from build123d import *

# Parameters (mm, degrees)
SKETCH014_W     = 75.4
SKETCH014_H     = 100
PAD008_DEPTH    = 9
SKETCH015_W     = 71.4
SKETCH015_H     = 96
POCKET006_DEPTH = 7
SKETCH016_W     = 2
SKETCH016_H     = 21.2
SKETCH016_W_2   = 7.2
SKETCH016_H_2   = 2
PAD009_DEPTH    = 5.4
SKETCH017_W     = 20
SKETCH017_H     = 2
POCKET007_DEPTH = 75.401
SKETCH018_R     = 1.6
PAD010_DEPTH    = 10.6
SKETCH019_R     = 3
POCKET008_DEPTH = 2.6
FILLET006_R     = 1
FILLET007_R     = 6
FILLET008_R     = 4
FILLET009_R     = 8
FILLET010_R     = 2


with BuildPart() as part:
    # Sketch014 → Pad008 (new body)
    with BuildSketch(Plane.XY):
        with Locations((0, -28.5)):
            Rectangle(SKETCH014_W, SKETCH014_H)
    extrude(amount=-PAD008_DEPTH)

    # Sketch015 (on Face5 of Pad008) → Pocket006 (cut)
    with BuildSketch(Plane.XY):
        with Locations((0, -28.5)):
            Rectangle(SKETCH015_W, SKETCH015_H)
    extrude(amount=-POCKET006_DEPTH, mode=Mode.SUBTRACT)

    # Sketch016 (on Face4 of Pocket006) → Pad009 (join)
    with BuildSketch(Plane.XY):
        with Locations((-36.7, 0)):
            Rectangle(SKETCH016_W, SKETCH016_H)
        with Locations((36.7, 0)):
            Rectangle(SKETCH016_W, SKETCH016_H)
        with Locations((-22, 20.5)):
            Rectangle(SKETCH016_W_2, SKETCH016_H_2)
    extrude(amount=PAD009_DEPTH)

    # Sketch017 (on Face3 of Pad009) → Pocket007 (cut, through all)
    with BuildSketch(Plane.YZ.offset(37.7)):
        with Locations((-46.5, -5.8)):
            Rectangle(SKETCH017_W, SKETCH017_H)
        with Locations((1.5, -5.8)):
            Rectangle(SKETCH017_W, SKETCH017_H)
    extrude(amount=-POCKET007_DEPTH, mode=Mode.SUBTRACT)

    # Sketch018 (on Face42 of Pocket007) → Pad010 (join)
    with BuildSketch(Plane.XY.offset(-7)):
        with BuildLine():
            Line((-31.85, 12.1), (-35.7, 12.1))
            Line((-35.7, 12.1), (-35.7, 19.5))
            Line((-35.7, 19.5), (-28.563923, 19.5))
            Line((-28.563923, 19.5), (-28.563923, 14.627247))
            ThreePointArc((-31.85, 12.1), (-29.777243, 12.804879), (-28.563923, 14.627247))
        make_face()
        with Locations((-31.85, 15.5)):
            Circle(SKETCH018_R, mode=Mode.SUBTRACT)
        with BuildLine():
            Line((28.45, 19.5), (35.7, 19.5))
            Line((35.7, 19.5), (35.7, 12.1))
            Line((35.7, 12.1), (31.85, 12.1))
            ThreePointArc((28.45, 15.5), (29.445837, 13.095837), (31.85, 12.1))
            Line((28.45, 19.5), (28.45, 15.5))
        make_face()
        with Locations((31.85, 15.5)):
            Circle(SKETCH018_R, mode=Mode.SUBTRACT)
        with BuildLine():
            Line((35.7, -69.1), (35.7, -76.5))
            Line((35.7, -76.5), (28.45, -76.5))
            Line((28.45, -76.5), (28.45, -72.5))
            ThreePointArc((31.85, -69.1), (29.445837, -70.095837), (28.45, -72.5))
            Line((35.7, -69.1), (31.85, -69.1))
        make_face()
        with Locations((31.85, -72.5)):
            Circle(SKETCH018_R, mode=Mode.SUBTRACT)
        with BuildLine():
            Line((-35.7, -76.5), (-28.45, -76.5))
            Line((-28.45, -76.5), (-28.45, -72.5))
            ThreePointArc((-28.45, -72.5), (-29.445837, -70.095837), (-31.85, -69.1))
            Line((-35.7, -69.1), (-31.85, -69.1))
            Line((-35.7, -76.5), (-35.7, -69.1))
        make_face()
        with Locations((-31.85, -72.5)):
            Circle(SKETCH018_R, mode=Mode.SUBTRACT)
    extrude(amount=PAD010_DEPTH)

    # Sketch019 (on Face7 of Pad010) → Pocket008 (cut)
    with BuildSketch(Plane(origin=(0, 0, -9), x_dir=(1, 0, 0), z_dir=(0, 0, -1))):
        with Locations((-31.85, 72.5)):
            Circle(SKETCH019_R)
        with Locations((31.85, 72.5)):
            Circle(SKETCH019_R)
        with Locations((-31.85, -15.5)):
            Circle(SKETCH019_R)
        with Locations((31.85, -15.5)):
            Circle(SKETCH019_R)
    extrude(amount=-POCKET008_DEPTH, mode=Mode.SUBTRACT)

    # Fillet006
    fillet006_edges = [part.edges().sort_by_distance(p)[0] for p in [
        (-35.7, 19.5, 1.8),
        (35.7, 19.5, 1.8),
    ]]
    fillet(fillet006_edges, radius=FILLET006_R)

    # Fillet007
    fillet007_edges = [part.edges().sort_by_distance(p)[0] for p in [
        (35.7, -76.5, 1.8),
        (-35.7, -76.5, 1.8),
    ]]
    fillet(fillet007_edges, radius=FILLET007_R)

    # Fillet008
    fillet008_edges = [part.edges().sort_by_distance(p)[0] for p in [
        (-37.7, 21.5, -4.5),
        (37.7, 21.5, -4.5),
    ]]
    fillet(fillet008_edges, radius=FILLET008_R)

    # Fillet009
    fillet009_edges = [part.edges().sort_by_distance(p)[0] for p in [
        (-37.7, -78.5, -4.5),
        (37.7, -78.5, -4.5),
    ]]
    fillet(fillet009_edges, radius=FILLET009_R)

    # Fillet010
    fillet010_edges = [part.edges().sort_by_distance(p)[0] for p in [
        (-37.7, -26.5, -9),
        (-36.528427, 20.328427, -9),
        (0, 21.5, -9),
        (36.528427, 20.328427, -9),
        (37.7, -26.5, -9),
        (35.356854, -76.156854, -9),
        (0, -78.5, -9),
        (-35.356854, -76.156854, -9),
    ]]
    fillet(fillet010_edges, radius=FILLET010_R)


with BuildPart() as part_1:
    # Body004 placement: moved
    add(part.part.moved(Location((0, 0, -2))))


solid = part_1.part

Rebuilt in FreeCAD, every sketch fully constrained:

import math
import FreeCAD as App
import Part
import Sketcher
from FreeCAD import Vector


def edges_at(feature, points):
    """Names of the edges that pass closest to the given points."""
    edges = feature.Shape.Edges
    near = lambda p: min(range(len(edges)), key=lambda i: edges[i].distToShape(Part.Vertex(*p))[0])
    return sorted({f"Edge{near(p) + 1}" for p in points})

doc = App.newDocument("Part")
body = doc.addObject("PartDesign::Body", "Body")

sketch1 = body.newObject("Sketcher::SketchObject", "Sketch")
sketch1.AttachmentSupport = (doc.getObject("XY_Plane"), [""])
sketch1.MapMode = "FlatFace"
sketch1.addGeometry(Part.LineSegment(Vector(-37.7, 21.5, 0), Vector(-37.7, -78.5, 0)), False)
sketch1.addGeometry(Part.LineSegment(Vector(-37.7, -78.5, 0), Vector(37.7, -78.5, 0)), False)
sketch1.addGeometry(Part.LineSegment(Vector(37.7, -78.5, 0), Vector(37.7, 21.5, 0)), False)
sketch1.addGeometry(Part.LineSegment(Vector(37.7, 21.5, 0), Vector(-37.7, 21.5, 0)), False)
sketch1.addConstraint(Sketcher.Constraint("Coincident", 0, 2, 1, 1))
sketch1.addConstraint(Sketcher.Constraint("Coincident", 1, 2, 2, 1))
sketch1.addConstraint(Sketcher.Constraint("Coincident", 2, 2, 3, 1))
sketch1.addConstraint(Sketcher.Constraint("Coincident", 3, 2, 0, 1))
sketch1.addConstraint(Sketcher.Constraint("Vertical", 0))
sketch1.addConstraint(Sketcher.Constraint("Horizontal", 1))
sketch1.addConstraint(Sketcher.Constraint("Vertical", 2))
sketch1.addConstraint(Sketcher.Constraint("Horizontal", 3))
sketch1.addConstraint(Sketcher.Constraint("DistanceY", 0, 2, 0, 1, 100.0))
sketch1.addConstraint(Sketcher.Constraint("DistanceX", 1, 1, 1, 2, 75.4))
sketch1.addConstraint(Sketcher.Constraint("DistanceX", 0, 2, -1, 1, 37.7))
sketch1.addConstraint(Sketcher.Constraint("DistanceY", 0, 2, -1, 1, 78.5))
pad1 = body.newObject("PartDesign::Pad", "Pad")
pad1.Profile = sketch1
pad1.Length = 9
pad1.Reversed = True

sketch2 = body.newObject("Sketcher::SketchObject", "Sketch001")
sketch2.AttachmentSupport = (doc.getObject("XY_Plane"), [""])
sketch2.MapMode = "FlatFace"
sketch2.addGeometry(Part.LineSegment(Vector(-35.7, 19.5, 0), Vector(-35.7, -76.5, 0)), False)
sketch2.addGeometry(Part.LineSegment(Vector(-35.7, -76.5, 0), Vector(35.7, -76.5, 0)), False)
sketch2.addGeometry(Part.LineSegment(Vector(35.7, -76.5, 0), Vector(35.7, 19.5, 0)), False)
sketch2.addGeometry(Part.LineSegment(Vector(35.7, 19.5, 0), Vector(-35.7, 19.5, 0)), False)
sketch2.addConstraint(Sketcher.Constraint("Coincident", 0, 2, 1, 1))
sketch2.addConstraint(Sketcher.Constraint("Coincident", 1, 2, 2, 1))
sketch2.addConstraint(Sketcher.Constraint("Coincident", 2, 2, 3, 1))
sketch2.addConstraint(Sketcher.Constraint("Coincident", 3, 2, 0, 1))
sketch2.addConstraint(Sketcher.Constraint("Vertical", 0))
sketch2.addConstraint(Sketcher.Constraint("Horizontal", 1))
sketch2.addConstraint(Sketcher.Constraint("Vertical", 2))
sketch2.addConstraint(Sketcher.Constraint("Horizontal", 3))
sketch2.addConstraint(Sketcher.Constraint("DistanceY", 0, 2, 0, 1, 96.0))
sketch2.addConstraint(Sketcher.Constraint("DistanceX", 1, 1, 1, 2, 71.4))
sketch2.addConstraint(Sketcher.Constraint("DistanceX", 0, 2, -1, 1, 35.7))
sketch2.addConstraint(Sketcher.Constraint("DistanceY", 0, 2, -1, 1, 76.5))
pocket1 = body.newObject("PartDesign::Pocket", "Pocket")
pocket1.Profile = sketch2
pocket1.Length = 7

sketch3 = body.newObject("Sketcher::SketchObject", "Sketch002")
sketch3.AttachmentSupport = (doc.getObject("XY_Plane"), [""])
sketch3.MapMode = "FlatFace"
sketch3.addGeometry(Part.LineSegment(Vector(-37.7, 10.6, 0), Vector(-37.7, -10.6, 0)), False)
sketch3.addGeometry(Part.LineSegment(Vector(-37.7, -10.6, 0), Vector(-35.7, -10.6, 0)), False)
sketch3.addGeometry(Part.LineSegment(Vector(-35.7, -10.6, 0), Vector(-35.7, 10.6, 0)), False)
sketch3.addGeometry(Part.LineSegment(Vector(-35.7, 10.6, 0), Vector(-37.7, 10.6, 0)), False)
sketch3.addGeometry(Part.LineSegment(Vector(35.7, 10.6, 0), Vector(35.7, -10.6, 0)), False)
sketch3.addGeometry(Part.LineSegment(Vector(35.7, -10.6, 0), Vector(37.7, -10.6, 0)), False)
sketch3.addGeometry(Part.LineSegment(Vector(37.7, -10.6, 0), Vector(37.7, 10.6, 0)), False)
sketch3.addGeometry(Part.LineSegment(Vector(37.7, 10.6, 0), Vector(35.7, 10.6, 0)), False)
sketch3.addGeometry(Part.LineSegment(Vector(-25.6, 21.5, 0), Vector(-25.6, 19.5, 0)), False)
sketch3.addGeometry(Part.LineSegment(Vector(-25.6, 19.5, 0), Vector(-18.4, 19.5, 0)), False)
sketch3.addGeometry(Part.LineSegment(Vector(-18.4, 19.5, 0), Vector(-18.4, 21.5, 0)), False)
sketch3.addGeometry(Part.LineSegment(Vector(-18.4, 21.5, 0), Vector(-25.6, 21.5, 0)), False)
sketch3.addConstraint(Sketcher.Constraint("Coincident", 0, 2, 1, 1))
sketch3.addConstraint(Sketcher.Constraint("Coincident", 1, 2, 2, 1))
sketch3.addConstraint(Sketcher.Constraint("Coincident", 2, 2, 3, 1))
sketch3.addConstraint(Sketcher.Constraint("Coincident", 3, 2, 0, 1))
sketch3.addConstraint(Sketcher.Constraint("Coincident", 4, 2, 5, 1))
sketch3.addConstraint(Sketcher.Constraint("Coincident", 5, 2, 6, 1))
sketch3.addConstraint(Sketcher.Constraint("Coincident", 6, 2, 7, 1))
sketch3.addConstraint(Sketcher.Constraint("Coincident", 7, 2, 4, 1))
sketch3.addConstraint(Sketcher.Constraint("Coincident", 8, 2, 9, 1))
sketch3.addConstraint(Sketcher.Constraint("Coincident", 9, 2, 10, 1))
sketch3.addConstraint(Sketcher.Constraint("Coincident", 10, 2, 11, 1))
sketch3.addConstraint(Sketcher.Constraint("Coincident", 11, 2, 8, 1))
sketch3.addConstraint(Sketcher.Constraint("Vertical", 0))
sketch3.addConstraint(Sketcher.Constraint("Horizontal", 1))
sketch3.addConstraint(Sketcher.Constraint("Vertical", 2))
sketch3.addConstraint(Sketcher.Constraint("Horizontal", 3))
sketch3.addConstraint(Sketcher.Constraint("Vertical", 4))
sketch3.addConstraint(Sketcher.Constraint("Horizontal", 5))
sketch3.addConstraint(Sketcher.Constraint("Vertical", 6))
sketch3.addConstraint(Sketcher.Constraint("Horizontal", 7))
sketch3.addConstraint(Sketcher.Constraint("Vertical", 8))
sketch3.addConstraint(Sketcher.Constraint("Horizontal", 9))
sketch3.addConstraint(Sketcher.Constraint("Vertical", 10))
sketch3.addConstraint(Sketcher.Constraint("Horizontal", 11))
sketch3.addConstraint(Sketcher.Constraint("Symmetric", 2, 2, 4, 2, -1, 1))
sketch3.addConstraint(Sketcher.Constraint("Symmetric", 0, 2, 6, 2, -1, 1))
sketch3.addConstraint(Sketcher.Constraint("Horizontal", 1, 2, 4, 2))
sketch3.addConstraint(Sketcher.Constraint("Equal", 7, 8))
sketch3.addConstraint(Sketcher.Constraint("DistanceX", 1, 1, 1, 2, 2.0))
sketch3.addConstraint(Sketcher.Constraint("DistanceX", 9, 1, 9, 2, 7.2))
sketch3.addConstraint(Sketcher.Constraint("DistanceY", 0, 2, 0, 1, 21.2))
sketch3.addConstraint(Sketcher.Constraint("DistanceX", 0, 2, -1, 1, 37.7))
sketch3.addConstraint(Sketcher.Constraint("DistanceX", 8, 2, -1, 1, 25.6))
sketch3.addConstraint(Sketcher.Constraint("DistanceY", -1, 1, 8, 2, 19.5))
pad2 = body.newObject("PartDesign::Pad", "Pad001")
pad2.Profile = sketch3
pad2.Length = 5.4

sketch4 = body.newObject("Sketcher::SketchObject", "Sketch003")
sketch4.AttachmentSupport = (doc.getObject("YZ_Plane"), [""])
sketch4.MapMode = "FlatFace"
sketch4.AttachmentOffset = App.Placement(Vector(0, 0, 37.7), App.Rotation())
sketch4.addGeometry(Part.LineSegment(Vector(-56.5, -4.8, 0), Vector(-56.5, -6.8, 0)), False)
sketch4.addGeometry(Part.LineSegment(Vector(-56.5, -6.8, 0), Vector(-36.5, -6.8, 0)), False)
sketch4.addGeometry(Part.LineSegment(Vector(-36.5, -6.8, 0), Vector(-36.5, -4.8, 0)), False)
sketch4.addGeometry(Part.LineSegment(Vector(-36.5, -4.8, 0), Vector(-56.5, -4.8, 0)), False)
sketch4.addGeometry(Part.LineSegment(Vector(-8.5, -4.8, 0), Vector(-8.5, -6.8, 0)), False)
sketch4.addGeometry(Part.LineSegment(Vector(-8.5, -6.8, 0), Vector(11.5, -6.8, 0)), False)
sketch4.addGeometry(Part.LineSegment(Vector(11.5, -6.8, 0), Vector(11.5, -4.8, 0)), False)
sketch4.addGeometry(Part.LineSegment(Vector(11.5, -4.8, 0), Vector(-8.5, -4.8, 0)), False)
sketch4.addConstraint(Sketcher.Constraint("Coincident", 0, 2, 1, 1))
sketch4.addConstraint(Sketcher.Constraint("Coincident", 1, 2, 2, 1))
sketch4.addConstraint(Sketcher.Constraint("Coincident", 2, 2, 3, 1))
sketch4.addConstraint(Sketcher.Constraint("Coincident", 3, 2, 0, 1))
sketch4.addConstraint(Sketcher.Constraint("Coincident", 4, 2, 5, 1))
sketch4.addConstraint(Sketcher.Constraint("Coincident", 5, 2, 6, 1))
sketch4.addConstraint(Sketcher.Constraint("Coincident", 6, 2, 7, 1))
sketch4.addConstraint(Sketcher.Constraint("Coincident", 7, 2, 4, 1))
sketch4.addConstraint(Sketcher.Constraint("Vertical", 0))
sketch4.addConstraint(Sketcher.Constraint("Horizontal", 1))
sketch4.addConstraint(Sketcher.Constraint("Vertical", 2))
sketch4.addConstraint(Sketcher.Constraint("Horizontal", 3))
sketch4.addConstraint(Sketcher.Constraint("Vertical", 4))
sketch4.addConstraint(Sketcher.Constraint("Horizontal", 5))
sketch4.addConstraint(Sketcher.Constraint("Vertical", 6))
sketch4.addConstraint(Sketcher.Constraint("Horizontal", 7))
sketch4.addConstraint(Sketcher.Constraint("Horizontal", 1, 2, 4, 2))
sketch4.addConstraint(Sketcher.Constraint("Horizontal", 3, 2, 6, 2))
sketch4.addConstraint(Sketcher.Constraint("Equal", 3, 5))
sketch4.addConstraint(Sketcher.Constraint("DistanceX", 1, 1, 1, 2, 20.0))
sketch4.addConstraint(Sketcher.Constraint("DistanceY", 0, 2, 0, 1, 2.0))
sketch4.addConstraint(Sketcher.Constraint("DistanceX", 1, 2, 4, 2, 28.0))
sketch4.addConstraint(Sketcher.Constraint("DistanceX", 0, 2, -1, 1, 56.5))
sketch4.addConstraint(Sketcher.Constraint("DistanceY", 0, 2, -1, 1, 6.8))
pocket2 = body.newObject("PartDesign::Pocket", "Pocket001")
pocket2.Profile = sketch4
pocket2.Type = "ThroughAll"

sketch5 = body.newObject("Sketcher::SketchObject", "Sketch004")
sketch5.AttachmentSupport = (doc.getObject("XY_Plane"), [""])
sketch5.MapMode = "FlatFace"
sketch5.AttachmentOffset = App.Placement(Vector(0, 0, -7), App.Rotation())
sketch5.addGeometry(Part.LineSegment(Vector(-35.7, 12.1, 0), Vector(-31.85, 12.1, 0)), False)
sketch5.addGeometry(Part.ArcOfCircle(Part.Circle(Vector(-31.850001, 15.500001, 0), Vector(0, 0, 1), 3.400001), math.radians(-89.999991), math.radians(-14.873879)), False)
sketch5.addGeometry(Part.LineSegment(Vector(-28.563923, 14.627247, 0), Vector(-28.563923, 19.5, 0)), False)
sketch5.addGeometry(Part.LineSegment(Vector(-28.563923, 19.5, 0), Vector(-35.7, 19.5, 0)), False)
sketch5.addGeometry(Part.LineSegment(Vector(-35.7, 19.5, 0), Vector(-35.7, 12.1, 0)), False)
sketch5.addGeometry(Part.Circle(Vector(-31.85, 15.5, 0), Vector(0, 0, 1), 1.6), False)
sketch5.addGeometry(Part.LineSegment(Vector(35.7, 19.5, 0), Vector(28.45, 19.5, 0)), False)
sketch5.addGeometry(Part.LineSegment(Vector(28.45, 19.5, 0), Vector(28.45, 15.5, 0)), False)
sketch5.addGeometry(Part.ArcOfCircle(Part.Circle(Vector(31.85, 15.5, 0), Vector(0, 0, 1), 3.4), math.radians(-179.999997), math.radians(-90.000003)), False)
sketch5.addGeometry(Part.LineSegment(Vector(31.85, 12.1, 0), Vector(35.7, 12.1, 0)), False)
sketch5.addGeometry(Part.LineSegment(Vector(35.7, 12.1, 0), Vector(35.7, 19.5, 0)), False)
sketch5.addGeometry(Part.Circle(Vector(31.85, 15.5, 0), Vector(0, 0, 1), 1.6), False)
sketch5.addGeometry(Part.LineSegment(Vector(35.7, -76.5, 0), Vector(35.7, -69.1, 0)), False)
sketch5.addGeometry(Part.LineSegment(Vector(35.7, -69.1, 0), Vector(31.85, -69.1, 0)), False)
sketch5.addGeometry(Part.ArcOfCircle(Part.Circle(Vector(31.85, -72.5, 0), Vector(0, 0, 1), 3.4), math.radians(90.000003), math.radians(179.999997)), False)
sketch5.addGeometry(Part.LineSegment(Vector(28.45, -72.5, 0), Vector(28.45, -76.5, 0)), False)
sketch5.addGeometry(Part.LineSegment(Vector(28.45, -76.5, 0), Vector(35.7, -76.5, 0)), False)
sketch5.addGeometry(Part.Circle(Vector(31.85, -72.5, 0), Vector(0, 0, 1), 1.6), False)
sketch5.addGeometry(Part.LineSegment(Vector(-35.7, -76.5, 0), Vector(-28.45, -76.5, 0)), False)
sketch5.addGeometry(Part.LineSegment(Vector(-28.45, -76.5, 0), Vector(-28.45, -72.5, 0)), False)
sketch5.addGeometry(Part.ArcOfCircle(Part.Circle(Vector(-31.85, -72.5, 0), Vector(0, 0, 1), 3.4), math.radians(0.000003), math.radians(89.999997)), False)
sketch5.addGeometry(Part.LineSegment(Vector(-31.85, -69.1, 0), Vector(-35.7, -69.1, 0)), False)
sketch5.addGeometry(Part.LineSegment(Vector(-35.7, -69.1, 0), Vector(-35.7, -76.5, 0)), False)
sketch5.addGeometry(Part.Circle(Vector(-31.85, -72.5, 0), Vector(0, 0, 1), 1.6), False)
sketch5.addConstraint(Sketcher.Constraint("Tangent", 0, 2, 1, 1))
sketch5.addConstraint(Sketcher.Constraint("Coincident", 1, 2, 2, 1))
sketch5.addConstraint(Sketcher.Constraint("Coincident", 2, 2, 3, 1))
sketch5.addConstraint(Sketcher.Constraint("Coincident", 3, 2, 4, 1))
sketch5.addConstraint(Sketcher.Constraint("Coincident", 4, 2, 0, 1))
sketch5.addConstraint(Sketcher.Constraint("Coincident", 6, 2, 7, 1))
sketch5.addConstraint(Sketcher.Constraint("Tangent", 7, 2, 8, 1))
sketch5.addConstraint(Sketcher.Constraint("Tangent", 8, 2, 9, 1))
sketch5.addConstraint(Sketcher.Constraint("Coincident", 9, 2, 10, 1))
sketch5.addConstraint(Sketcher.Constraint("Coincident", 10, 2, 6, 1))
sketch5.addConstraint(Sketcher.Constraint("Coincident", 12, 2, 13, 1))
sketch5.addConstraint(Sketcher.Constraint("Tangent", 13, 2, 14, 1))
sketch5.addConstraint(Sketcher.Constraint("Tangent", 14, 2, 15, 1))
sketch5.addConstraint(Sketcher.Constraint("Coincident", 15, 2, 16, 1))
sketch5.addConstraint(Sketcher.Constraint("Coincident", 16, 2, 12, 1))
sketch5.addConstraint(Sketcher.Constraint("Coincident", 18, 2, 19, 1))
sketch5.addConstraint(Sketcher.Constraint("Tangent", 19, 2, 20, 1))
sketch5.addConstraint(Sketcher.Constraint("Tangent", 20, 2, 21, 1))
sketch5.addConstraint(Sketcher.Constraint("Coincident", 21, 2, 22, 1))
sketch5.addConstraint(Sketcher.Constraint("Coincident", 22, 2, 18, 1))
sketch5.addConstraint(Sketcher.Constraint("Horizontal", 0))
sketch5.addConstraint(Sketcher.Constraint("Vertical", 2))
sketch5.addConstraint(Sketcher.Constraint("Horizontal", 3))
sketch5.addConstraint(Sketcher.Constraint("Vertical", 4))
sketch5.addConstraint(Sketcher.Constraint("Horizontal", 6))
sketch5.addConstraint(Sketcher.Constraint("Vertical", 7))
sketch5.addConstraint(Sketcher.Constraint("Horizontal", 9))
sketch5.addConstraint(Sketcher.Constraint("Vertical", 10))
sketch5.addConstraint(Sketcher.Constraint("Vertical", 12))
sketch5.addConstraint(Sketcher.Constraint("Horizontal", 13))
sketch5.addConstraint(Sketcher.Constraint("Vertical", 15))
sketch5.addConstraint(Sketcher.Constraint("Horizontal", 16))
sketch5.addConstraint(Sketcher.Constraint("Horizontal", 18))
sketch5.addConstraint(Sketcher.Constraint("Vertical", 19))
sketch5.addConstraint(Sketcher.Constraint("Horizontal", 21))
sketch5.addConstraint(Sketcher.Constraint("Vertical", 22))
sketch5.addConstraint(Sketcher.Constraint("Coincident", 5, 3, 1, 3))
sketch5.addConstraint(Sketcher.Constraint("Coincident", 11, 3, 8, 3))
sketch5.addConstraint(Sketcher.Constraint("Coincident", 17, 3, 14, 3))
sketch5.addConstraint(Sketcher.Constraint("Coincident", 23, 3, 20, 3))
sketch5.addConstraint(Sketcher.Constraint("Equal", 1, 8))
sketch5.addConstraint(Sketcher.Constraint("Equal", 5, 11))
sketch5.addConstraint(Sketcher.Constraint("Equal", 8, 14))
sketch5.addConstraint(Sketcher.Constraint("Equal", 11, 17))
sketch5.addConstraint(Sketcher.Constraint("Equal", 14, 20))
sketch5.addConstraint(Sketcher.Constraint("Equal", 17, 23))
sketch5.addConstraint(Sketcher.Constraint("Symmetric", 1, 3, 8, 3, -2))
sketch5.addConstraint(Sketcher.Constraint("Symmetric", 14, 3, 20, 3, -2))
sketch5.addConstraint(Sketcher.Constraint("Symmetric", 3, 2, 10, 2, -2))
sketch5.addConstraint(Sketcher.Constraint("Symmetric", 16, 2, 22, 2, -2))
sketch5.addConstraint(Sketcher.Constraint("Vertical", 11, 3, 14, 3))
sketch5.addConstraint(Sketcher.Constraint("Vertical", 10, 2, 12, 2))
sketch5.addConstraint(Sketcher.Constraint("Equal", 10, 12))
sketch5.addConstraint(Sketcher.Constraint("Diameter", 5, 3.2))
sketch5.addConstraint(Sketcher.Constraint("Radius", 1, 3.400001))
sketch5.addConstraint(Sketcher.Constraint("DistanceY", 7, 2, 7, 1, 4.0))
sketch5.addConstraint(Sketcher.Constraint("DistanceY", 14, 3, 11, 3, 88.0))
sketch5.addConstraint(Sketcher.Constraint("DistanceX", 0, 1, 0, 2, 3.85))
sketch5.addConstraint(Sketcher.Constraint("DistanceY", -1, 1, 1, 3, 15.500001))
sketch5.addConstraint(Sketcher.Constraint("DistanceX", 3, 2, -1, 1, 35.7))
sketch5.addConstraint(Sketcher.Constraint("DistanceX", 3, 2, 3, 1, 7.136077))
pad3 = body.newObject("PartDesign::Pad", "Pad002")
pad3.Profile = sketch5
pad3.Length = 10.6

sketch6 = body.newObject("Sketcher::SketchObject", "Sketch005")
sketch6.AttachmentSupport = (doc.getObject("XY_Plane"), [""])
sketch6.MapMode = "FlatFace"
sketch6.AttachmentOffset = App.Placement(Vector(0, 0, -9), App.Rotation())
sketch6.addGeometry(Part.Circle(Vector(-31.85, -72.5, 0), Vector(0, 0, 1), 3), False)
sketch6.addGeometry(Part.Circle(Vector(31.85, -72.5, 0), Vector(0, 0, 1), 3), False)
sketch6.addGeometry(Part.Circle(Vector(-31.85, 15.5, 0), Vector(0, 0, 1), 3), False)
sketch6.addGeometry(Part.Circle(Vector(31.85, 15.5, 0), Vector(0, 0, 1), 3), False)
sketch6.addConstraint(Sketcher.Constraint("Equal", 0, 1))
sketch6.addConstraint(Sketcher.Constraint("Equal", 1, 2))
sketch6.addConstraint(Sketcher.Constraint("Equal", 2, 3))
sketch6.addConstraint(Sketcher.Constraint("Symmetric", 0, 3, 1, 3, -2))
sketch6.addConstraint(Sketcher.Constraint("Symmetric", 2, 3, 3, 3, -2))
sketch6.addConstraint(Sketcher.Constraint("Vertical", 0, 3, 2, 3))
sketch6.addConstraint(Sketcher.Constraint("Diameter", 0, 6.0))
sketch6.addConstraint(Sketcher.Constraint("DistanceY", 0, 3, 2, 3, 88.0))
sketch6.addConstraint(Sketcher.Constraint("DistanceY", 0, 3, -1, 1, 72.5))
sketch6.addConstraint(Sketcher.Constraint("DistanceX", 0, 3, 1, 3, 63.7))
pocket3 = body.newObject("PartDesign::Pocket", "Pocket002")
pocket3.Profile = sketch6
pocket3.Length = 2.6
pocket3.Reversed = True
doc.recompute()

fillet = body.newObject("PartDesign::Fillet", "Fillet")
fillet.Base = (pocket3, edges_at(pocket3, [(-35.7, 19.5, 1.8), (35.7, 19.5, 1.8)]))
fillet.Radius = 1
doc.recompute()

fillet2 = body.newObject("PartDesign::Fillet", "Fillet001")
fillet2.Base = (fillet, edges_at(fillet, [(35.7, -76.5, 1.8), (-35.7, -76.5, 1.8)]))
fillet2.Radius = 6
doc.recompute()

fillet3 = body.newObject("PartDesign::Fillet", "Fillet002")
fillet3.Base = (fillet2, edges_at(fillet2, [(-37.7, 21.5, -4.5), (37.7, 21.5, -4.5)]))
fillet3.Radius = 4
doc.recompute()

fillet4 = body.newObject("PartDesign::Fillet", "Fillet003")
fillet4.Base = (fillet3, edges_at(fillet3, [(-37.7, -78.5, -4.5), (37.7, -78.5, -4.5)]))
fillet4.Radius = 8
doc.recompute()

fillet5 = body.newObject("PartDesign::Fillet", "Fillet004")
fillet5.Base = (fillet4, edges_at(fillet4, [
    (-37.7, -26.5, -9),
    (-36.528, 20.328, -9),
    (0, 21.5, -9),
    (36.528, 20.328, -9),
    (37.7, -26.5, -9),
    (35.357, -76.157, -9),
    (0, -78.5, -9),
    (-35.357, -76.157, -9),
]))
fillet5.Radius = 2
body2 = doc.addObject("PartDesign::Body", "Body001")
doc.recompute()

body.Placement = App.Placement(Vector(0, 0, -2), App.Rotation(Vector(0, 0, 1), 0))
boolean = body2.newObject("PartDesign::Boolean", "Boolean")
boolean.Type = "Fuse"
boolean.addObjects([body])

doc.recompute()
